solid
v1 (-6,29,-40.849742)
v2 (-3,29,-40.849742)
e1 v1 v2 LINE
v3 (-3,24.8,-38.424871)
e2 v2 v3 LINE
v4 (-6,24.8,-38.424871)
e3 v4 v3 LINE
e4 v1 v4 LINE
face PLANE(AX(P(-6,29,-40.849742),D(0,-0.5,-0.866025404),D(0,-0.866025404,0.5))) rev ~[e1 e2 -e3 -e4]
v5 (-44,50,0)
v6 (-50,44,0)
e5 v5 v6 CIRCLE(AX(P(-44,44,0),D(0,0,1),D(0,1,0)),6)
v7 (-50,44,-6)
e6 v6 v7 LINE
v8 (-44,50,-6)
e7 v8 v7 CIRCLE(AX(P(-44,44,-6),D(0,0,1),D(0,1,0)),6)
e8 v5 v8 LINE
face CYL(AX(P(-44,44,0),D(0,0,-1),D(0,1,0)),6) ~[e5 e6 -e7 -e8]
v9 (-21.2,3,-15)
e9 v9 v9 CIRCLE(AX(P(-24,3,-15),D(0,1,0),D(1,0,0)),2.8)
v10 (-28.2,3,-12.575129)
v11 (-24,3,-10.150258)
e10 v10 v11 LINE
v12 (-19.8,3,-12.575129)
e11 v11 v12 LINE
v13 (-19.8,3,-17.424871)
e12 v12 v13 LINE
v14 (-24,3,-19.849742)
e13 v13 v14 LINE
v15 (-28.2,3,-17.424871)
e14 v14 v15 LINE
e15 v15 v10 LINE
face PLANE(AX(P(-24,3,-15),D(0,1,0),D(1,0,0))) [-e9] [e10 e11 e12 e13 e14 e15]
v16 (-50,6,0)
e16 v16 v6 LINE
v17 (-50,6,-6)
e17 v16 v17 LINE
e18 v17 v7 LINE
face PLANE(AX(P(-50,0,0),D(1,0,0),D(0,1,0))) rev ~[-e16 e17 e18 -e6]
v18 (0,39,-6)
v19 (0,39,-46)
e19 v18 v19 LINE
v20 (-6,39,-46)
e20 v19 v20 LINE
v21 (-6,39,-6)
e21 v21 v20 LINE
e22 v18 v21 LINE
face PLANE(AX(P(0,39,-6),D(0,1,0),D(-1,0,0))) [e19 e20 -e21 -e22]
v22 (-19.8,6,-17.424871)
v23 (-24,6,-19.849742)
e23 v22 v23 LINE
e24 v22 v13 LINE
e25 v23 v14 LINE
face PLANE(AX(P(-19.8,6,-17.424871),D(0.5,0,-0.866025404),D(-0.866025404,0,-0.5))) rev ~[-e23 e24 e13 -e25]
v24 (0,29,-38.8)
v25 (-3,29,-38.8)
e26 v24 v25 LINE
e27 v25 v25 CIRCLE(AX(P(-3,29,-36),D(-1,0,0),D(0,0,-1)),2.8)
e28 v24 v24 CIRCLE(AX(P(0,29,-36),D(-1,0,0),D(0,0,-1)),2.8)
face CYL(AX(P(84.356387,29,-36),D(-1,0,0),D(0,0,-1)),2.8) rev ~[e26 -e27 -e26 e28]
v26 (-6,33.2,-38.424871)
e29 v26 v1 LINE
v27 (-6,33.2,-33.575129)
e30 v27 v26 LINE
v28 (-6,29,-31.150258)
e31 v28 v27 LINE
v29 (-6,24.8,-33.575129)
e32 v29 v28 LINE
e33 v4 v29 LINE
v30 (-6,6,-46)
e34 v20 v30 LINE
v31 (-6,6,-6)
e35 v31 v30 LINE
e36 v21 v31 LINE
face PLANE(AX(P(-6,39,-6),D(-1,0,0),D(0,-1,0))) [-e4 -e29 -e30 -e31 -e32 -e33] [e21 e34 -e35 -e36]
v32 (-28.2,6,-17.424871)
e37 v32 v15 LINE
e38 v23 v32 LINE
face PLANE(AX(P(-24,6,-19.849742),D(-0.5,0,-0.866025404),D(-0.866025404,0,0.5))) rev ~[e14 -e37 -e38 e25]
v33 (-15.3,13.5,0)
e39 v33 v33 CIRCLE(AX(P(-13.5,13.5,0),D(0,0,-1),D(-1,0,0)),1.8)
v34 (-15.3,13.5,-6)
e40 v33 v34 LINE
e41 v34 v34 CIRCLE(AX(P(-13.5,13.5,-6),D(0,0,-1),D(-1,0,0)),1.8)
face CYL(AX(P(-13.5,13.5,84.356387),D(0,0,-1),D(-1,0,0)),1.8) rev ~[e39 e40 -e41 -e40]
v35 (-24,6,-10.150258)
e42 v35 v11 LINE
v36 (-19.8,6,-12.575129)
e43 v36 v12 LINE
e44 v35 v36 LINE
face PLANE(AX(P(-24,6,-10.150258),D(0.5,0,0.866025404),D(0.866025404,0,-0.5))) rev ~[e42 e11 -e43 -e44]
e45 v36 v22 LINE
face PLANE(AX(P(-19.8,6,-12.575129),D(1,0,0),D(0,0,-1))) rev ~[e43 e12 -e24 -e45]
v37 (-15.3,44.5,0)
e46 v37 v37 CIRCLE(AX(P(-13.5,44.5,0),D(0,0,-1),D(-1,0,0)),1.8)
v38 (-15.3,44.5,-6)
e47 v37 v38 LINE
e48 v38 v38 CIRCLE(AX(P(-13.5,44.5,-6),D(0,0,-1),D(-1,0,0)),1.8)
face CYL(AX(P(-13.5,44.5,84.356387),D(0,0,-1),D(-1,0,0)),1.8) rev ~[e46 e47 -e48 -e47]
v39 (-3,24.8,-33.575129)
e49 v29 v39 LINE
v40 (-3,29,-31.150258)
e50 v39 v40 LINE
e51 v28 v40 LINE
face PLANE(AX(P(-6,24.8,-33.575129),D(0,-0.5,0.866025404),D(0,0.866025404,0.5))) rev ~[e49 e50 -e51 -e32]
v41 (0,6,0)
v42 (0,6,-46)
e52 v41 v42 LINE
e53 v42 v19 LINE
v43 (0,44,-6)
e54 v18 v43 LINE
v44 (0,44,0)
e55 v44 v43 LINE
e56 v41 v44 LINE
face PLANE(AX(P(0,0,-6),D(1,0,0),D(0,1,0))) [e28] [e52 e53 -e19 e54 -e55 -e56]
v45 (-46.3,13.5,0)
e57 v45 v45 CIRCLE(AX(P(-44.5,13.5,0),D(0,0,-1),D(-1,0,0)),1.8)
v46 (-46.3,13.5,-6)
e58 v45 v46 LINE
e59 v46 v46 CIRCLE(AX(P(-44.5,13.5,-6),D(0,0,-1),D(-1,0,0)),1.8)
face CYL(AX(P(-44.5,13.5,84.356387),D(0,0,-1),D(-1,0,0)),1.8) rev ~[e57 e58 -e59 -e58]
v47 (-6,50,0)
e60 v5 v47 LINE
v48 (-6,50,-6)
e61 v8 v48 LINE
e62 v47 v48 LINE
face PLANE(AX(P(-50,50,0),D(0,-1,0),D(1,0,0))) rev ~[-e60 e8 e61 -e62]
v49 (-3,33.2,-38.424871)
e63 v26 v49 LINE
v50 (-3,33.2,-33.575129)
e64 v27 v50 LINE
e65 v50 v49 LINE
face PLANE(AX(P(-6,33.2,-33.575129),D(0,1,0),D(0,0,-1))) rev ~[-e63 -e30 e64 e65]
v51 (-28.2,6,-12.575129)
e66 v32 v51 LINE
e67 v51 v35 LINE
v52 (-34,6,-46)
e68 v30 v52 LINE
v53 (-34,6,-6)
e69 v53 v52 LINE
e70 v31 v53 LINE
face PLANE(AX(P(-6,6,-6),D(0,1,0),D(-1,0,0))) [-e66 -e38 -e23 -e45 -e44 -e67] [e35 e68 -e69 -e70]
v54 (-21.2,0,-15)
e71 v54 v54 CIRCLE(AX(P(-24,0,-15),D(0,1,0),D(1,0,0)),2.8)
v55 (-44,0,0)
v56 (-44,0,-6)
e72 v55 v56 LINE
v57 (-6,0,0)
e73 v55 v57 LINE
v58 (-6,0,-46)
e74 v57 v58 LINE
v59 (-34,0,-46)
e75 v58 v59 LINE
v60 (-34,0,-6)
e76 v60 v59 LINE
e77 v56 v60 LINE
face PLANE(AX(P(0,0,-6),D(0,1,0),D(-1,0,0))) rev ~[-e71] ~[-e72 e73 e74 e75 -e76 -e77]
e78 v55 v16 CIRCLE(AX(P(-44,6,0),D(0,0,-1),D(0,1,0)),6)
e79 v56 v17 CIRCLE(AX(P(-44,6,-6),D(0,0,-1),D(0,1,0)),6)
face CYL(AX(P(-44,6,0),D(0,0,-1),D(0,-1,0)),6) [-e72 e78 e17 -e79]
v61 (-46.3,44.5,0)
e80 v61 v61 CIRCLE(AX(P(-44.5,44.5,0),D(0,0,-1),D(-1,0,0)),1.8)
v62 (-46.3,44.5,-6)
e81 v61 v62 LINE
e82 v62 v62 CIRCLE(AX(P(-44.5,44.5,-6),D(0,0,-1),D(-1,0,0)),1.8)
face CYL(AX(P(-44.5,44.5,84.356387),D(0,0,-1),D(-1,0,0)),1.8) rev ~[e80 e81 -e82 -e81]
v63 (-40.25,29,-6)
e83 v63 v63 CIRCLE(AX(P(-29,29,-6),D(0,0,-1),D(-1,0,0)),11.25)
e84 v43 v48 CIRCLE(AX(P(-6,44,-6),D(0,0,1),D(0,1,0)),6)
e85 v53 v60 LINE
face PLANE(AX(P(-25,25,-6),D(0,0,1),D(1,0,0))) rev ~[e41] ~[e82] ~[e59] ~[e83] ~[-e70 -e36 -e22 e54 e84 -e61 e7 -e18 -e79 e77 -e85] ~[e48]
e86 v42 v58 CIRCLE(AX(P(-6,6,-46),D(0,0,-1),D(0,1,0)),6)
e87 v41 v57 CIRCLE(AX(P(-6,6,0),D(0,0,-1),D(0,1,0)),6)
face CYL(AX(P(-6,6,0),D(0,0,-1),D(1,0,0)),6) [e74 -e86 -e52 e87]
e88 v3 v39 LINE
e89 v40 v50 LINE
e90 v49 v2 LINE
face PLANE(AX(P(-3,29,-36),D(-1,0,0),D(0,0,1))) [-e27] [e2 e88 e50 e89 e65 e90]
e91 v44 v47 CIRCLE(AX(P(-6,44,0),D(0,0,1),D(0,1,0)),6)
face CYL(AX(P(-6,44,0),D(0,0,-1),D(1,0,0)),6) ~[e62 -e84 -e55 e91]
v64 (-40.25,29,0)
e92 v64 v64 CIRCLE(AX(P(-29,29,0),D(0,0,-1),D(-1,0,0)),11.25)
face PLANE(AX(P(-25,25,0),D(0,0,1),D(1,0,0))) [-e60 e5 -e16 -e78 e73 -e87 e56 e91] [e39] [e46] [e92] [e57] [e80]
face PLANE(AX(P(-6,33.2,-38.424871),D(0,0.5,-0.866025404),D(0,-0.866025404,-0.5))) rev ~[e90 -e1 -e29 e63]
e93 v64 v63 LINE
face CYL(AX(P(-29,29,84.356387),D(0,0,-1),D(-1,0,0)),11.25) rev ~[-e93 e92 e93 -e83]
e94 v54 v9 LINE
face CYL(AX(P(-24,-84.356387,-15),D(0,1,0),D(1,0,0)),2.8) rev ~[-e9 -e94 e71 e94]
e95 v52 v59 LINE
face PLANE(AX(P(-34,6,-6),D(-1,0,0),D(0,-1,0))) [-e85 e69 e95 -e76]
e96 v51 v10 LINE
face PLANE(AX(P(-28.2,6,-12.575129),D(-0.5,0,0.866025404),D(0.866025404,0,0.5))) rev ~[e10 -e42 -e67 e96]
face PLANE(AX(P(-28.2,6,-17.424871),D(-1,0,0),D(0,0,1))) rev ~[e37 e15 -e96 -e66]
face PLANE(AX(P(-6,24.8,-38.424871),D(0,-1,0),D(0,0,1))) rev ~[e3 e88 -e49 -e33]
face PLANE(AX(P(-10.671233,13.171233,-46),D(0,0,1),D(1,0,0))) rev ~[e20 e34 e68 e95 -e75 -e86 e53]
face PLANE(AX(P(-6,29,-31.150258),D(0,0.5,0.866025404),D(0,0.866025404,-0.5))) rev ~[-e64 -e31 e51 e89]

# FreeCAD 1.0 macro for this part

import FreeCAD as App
import Part
import Sketcher
Q = App.Units.Quantity


def edges_at(feature, points):
    """Names of the edges that pass closest to the given points."""
    edges = feature.Shape.Edges
    near = lambda p: min(range(len(edges)), key=lambda i: edges[i].distToShape(Part.Vertex(*p))[0])
    return sorted({f"Edge{near(p) + 1}" for p in points})

doc = App.newDocument("Part")
body = doc.addObject("PartDesign::Body", "Body")

# Sketch on XY plane
sketch1 = body.newObject("Sketcher::SketchObject", "Sketch")
sketch1.AttachmentSupport = (doc.getObject("XY_Plane"), [""])
sketch1.MapMode = "FlatFace"
sketch1.addGeometry([
    Part.LineSegment(App.Vector(-50, 50, 0), App.Vector(-50, 0, 0)),
    Part.LineSegment(App.Vector(-50, 0, 0), App.Vector(0, 0, 0)),
    Part.LineSegment(App.Vector(0, 0, 0), App.Vector(0, 50, 0)),
    Part.LineSegment(App.Vector(0, 50, 0), App.Vector(-50, 50, 0)),
], False)
sketch1.addConstraint([
    Sketcher.Constraint("Coincident", 0, 2, 1, 1),
    Sketcher.Constraint("Coincident", 1, 2, 2, 1),
    Sketcher.Constraint("Coincident", 2, 2, 3, 1),
    Sketcher.Constraint("Coincident", 3, 2, 0, 1),
    Sketcher.Constraint("Vertical", 0),
    Sketcher.Constraint("Horizontal", 1),
    Sketcher.Constraint("Vertical", 2),
    Sketcher.Constraint("Horizontal", 3),
    Sketcher.Constraint("Coincident", 1, 2, -1, 1),
    Sketcher.Constraint("Equal", 3, 0),
    Sketcher.Constraint("DistanceX", 1, 1, 1, 2, Q("50 mm")),
])
pad1 = body.newObject("PartDesign::Pad", "Pad")
pad1.Profile = sketch1
pad1.Length = 6
pad1.Reversed = True

# Sketch on XY plane
sketch2 = body.newObject("Sketcher::SketchObject", "Sketch001")
sketch2.AttachmentSupport = (doc.getObject("XY_Plane"), [""])
sketch2.MapMode = "FlatFace"
sketch2.AttachmentOffset = App.Placement(App.Vector(0, 0, -6), App.Rotation())
sketch2.addGeometry([
    Part.LineSegment(App.Vector(-6, 39, 0), App.Vector(0, 39, 0)),  # 0
    Part.LineSegment(App.Vector(0, 39, 0), App.Vector(0, 0, 0)),  # 1
    Part.LineSegment(App.Vector(0, 0, 0), App.Vector(-34, 0, 0)),  # 2
    Part.LineSegment(App.Vector(-34, 0, 0), App.Vector(-34, 6, 0)),  # 3
    Part.LineSegment(App.Vector(-34, 6, 0), App.Vector(-6, 6, 0)),  # 4
    Part.LineSegment(App.Vector(-6, 6, 0), App.Vector(-6, 39, 0)),  # 5
], False)
sketch2.addConstraint([
    Sketcher.Constraint("Coincident", 0, 2, 1, 1),
    Sketcher.Constraint("Coincident", 1, 2, 2, 1),
    Sketcher.Constraint("Coincident", 2, 2, 3, 1),
    Sketcher.Constraint("Coincident", 3, 2, 4, 1),
    Sketcher.Constraint("Coincident", 4, 2, 5, 1),
    Sketcher.Constraint("Coincident", 5, 2, 0, 1),
    Sketcher.Constraint("Horizontal", 0),
    Sketcher.Constraint("Vertical", 1),
    Sketcher.Constraint("Horizontal", 2),
    Sketcher.Constraint("Vertical", 3),
    Sketcher.Constraint("Horizontal", 4),
    Sketcher.Constraint("Vertical", 5),
    Sketcher.Constraint("Coincident", 1, 2, -1, 1),
    Sketcher.Constraint("Equal", 0, 3),
    Sketcher.Constraint("DistanceX", 0, 1, 0, 2, Q("6 mm")),
    Sketcher.Constraint("DistanceX", 2, 2, 2, 1, Q("34 mm")),
    Sketcher.Constraint("DistanceY", 1, 2, 1, 1, Q("39 mm")),
])
pad2 = body.newObject("PartDesign::Pad", "Pad001")
pad2.Profile = sketch2
pad2.Length = 40
pad2.Reversed = True

# Sketch on XY plane
sketch3 = body.newObject("Sketcher::SketchObject", "Sketch002")
sketch3.AttachmentSupport = (doc.getObject("XY_Plane"), [""])
sketch3.MapMode = "FlatFace"
sketch3.addGeometry([
    Part.Circle(App.Vector(-44.5, 44.5, 0), App.Vector(0, 0, 1), 1.8),
    Part.Circle(App.Vector(-13.5, 44.5, 0), App.Vector(0, 0, 1), 1.8),
    Part.Circle(App.Vector(-13.5, 13.5, 0), App.Vector(0, 0, 1), 1.8),
    Part.Circle(App.Vector(-44.5, 13.5, 0), App.Vector(0, 0, 1), 1.8),
], False)
sketch3.addConstraint([
    Sketcher.Constraint("Equal", 0, 1),
    Sketcher.Constraint("Equal", 1, 2),
    Sketcher.Constraint("Equal", 2, 3),
    Sketcher.Constraint("Horizontal", 0, 3, 1, 3),
    Sketcher.Constraint("Horizontal", 2, 3, 3, 3),
    Sketcher.Constraint("Vertical", 1, 3, 2, 3),
    Sketcher.Constraint("Vertical", 0, 3, 3, 3),
    Sketcher.Constraint("Diameter", 0, Q("3.6 mm")),
    Sketcher.Constraint("DistanceX", 0, 3, 1, 3, Q("31 mm")),
    Sketcher.Constraint("DistanceY", 2, 3, 1, 3, Q("31 mm")),
    Sketcher.Constraint("DistanceX", 0, 3, -1, 1, Q("44.5 mm")),
    Sketcher.Constraint("DistanceY", -1, 1, 0, 3, Q("44.5 mm")),
])
doc.recompute()
hole = body.newObject("PartDesign::Hole", "Hole")
hole.Profile = sketch3
hole.ThreadType = "None"
hole.Diameter = 3.6
hole.DepthType = "ThroughAll"

# Sketch on XY plane
sketch4 = body.newObject("Sketcher::SketchObject", "Sketch003")
sketch4.AttachmentSupport = (doc.getObject("XY_Plane"), [""])
sketch4.MapMode = "FlatFace"
sketch4.addGeometry(Part.Circle(App.Vector(-29, 29, 0), App.Vector(0, 0, 1), 11), False)
sketch4.addConstraint([
    Sketcher.Constraint("Diameter", 0, Q("22.5 mm")),
    Sketcher.Constraint("DistanceX", 0, 3, -1, 1, Q("29 mm")),
    Sketcher.Constraint("DistanceY", -1, 1, 0, 3, Q("29 mm")),
])
doc.recompute()
hole2 = body.newObject("PartDesign::Hole", "Hole001")
hole2.Profile = sketch4
hole2.ThreadType = "None"
hole2.Diameter = 22.5
hole2.DepthType = "ThroughAll"

# Sketch on YZ plane
sketch5 = body.newObject("Sketcher::SketchObject", "Sketch004")
sketch5.AttachmentSupport = (doc.getObject("YZ_Plane"), [""])
sketch5.MapMode = "FlatFace"
sketch5.addGeometry(Part.Circle(App.Vector(29, -36, 0), App.Vector(0, 0, 1), 2.8), False)
sketch5.addConstraint([
    Sketcher.Constraint("Diameter", 0, Q("5.6 mm")),
    Sketcher.Constraint("DistanceX", -1, 1, 0, 3, Q("29 mm")),
    Sketcher.Constraint("DistanceY", 0, 3, -1, 1, Q("36 mm")),
])
doc.recompute()
hole3 = body.newObject("PartDesign::Hole", "Hole002")
hole3.Profile = sketch5
hole3.ThreadType = "None"
hole3.Diameter = 5.6
hole3.DepthType = "ThroughAll"

# Sketch on XZ plane
sketch6 = body.newObject("Sketcher::SketchObject", "Sketch005")
sketch6.AttachmentSupport = (doc.getObject("XZ_Plane"), [""])
sketch6.MapMode = "FlatFace"
sketch6.addGeometry(Part.Circle(App.Vector(-24, -15, 0), App.Vector(0, 0, 1), 2.8), False)
sketch6.addConstraint([
    Sketcher.Constraint("Diameter", 0, Q("5.6 mm")),
    Sketcher.Constraint("DistanceX", 0, 3, -1, 1, Q("24 mm")),
    Sketcher.Constraint("DistanceY", 0, 3, -1, 1, Q("15 mm")),
])
doc.recompute()
hole4 = body.newObject("PartDesign::Hole", "Hole003")
hole4.Profile = sketch6
hole4.ThreadType = "None"
hole4.Diameter = 5.6
hole4.DepthType = "ThroughAll"

# Sketch on XZ plane
sketch7 = body.newObject("Sketcher::SketchObject", "Sketch006")
sketch7.AttachmentSupport = (doc.getObject("XZ_Plane"), [""])
sketch7.MapMode = "FlatFace"
sketch7.AttachmentOffset = App.Placement(App.Vector(0, 0, -6), App.Rotation())
sketch7.addGeometry([
    Part.LineSegment(App.Vector(-28.2, -12.6, 0), App.Vector(-24, -10.2, 0)),  # 0
    Part.LineSegment(App.Vector(-24, -10.2, 0), App.Vector(-19.8, -12.6, 0)),  # 1
    Part.LineSegment(App.Vector(-19.8, -12.6, 0), App.Vector(-19.8, -17.4, 0)),  # 2
    Part.LineSegment(App.Vector(-19.8, -17.4, 0), App.Vector(-24, -19.8, 0)),  # 3
    Part.LineSegment(App.Vector(-24, -19.8, 0), App.Vector(-28.2, -17.4, 0)),  # 4
    Part.LineSegment(App.Vector(-28.2, -17.4, 0), App.Vector(-28.2, -12.6, 0)),  # 5
], False)
sketch7.addConstraint([
    Sketcher.Constraint("Coincident", 0, 2, 1, 1),
    Sketcher.Constraint("Coincident", 1, 2, 2, 1),
    Sketcher.Constraint("Coincident", 2, 2, 3, 1),
    Sketcher.Constraint("Coincident", 3, 2, 4, 1),
    Sketcher.Constraint("Coincident", 4, 2, 5, 1),
    Sketcher.Constraint("Coincident", 5, 2, 0, 1),
    Sketcher.Constraint("Vertical", 2),
    Sketcher.Constraint("Vertical", 5),
    Sketcher.Constraint("Parallel", 0, 3),
    Sketcher.Constraint("Parallel", 1, 4),
    Sketcher.Constraint("Horizontal", 2, 2, 4, 2),
    Sketcher.Constraint("Horizontal", 1, 2, 5, 2),
    Sketcher.Constraint("Vertical", 0, 2, 3, 2),
    Sketcher.Constraint("Angle", 0, Q("30 deg")),
    Sketcher.Constraint("DistanceX", 0, 2, -1, 1, Q("24 mm")),
    Sketcher.Constraint("DistanceX", 1, 2, -1, 1, Q("19.8 mm")),
    Sketcher.Constraint("DistanceY", 2, 2, 2, 1, Q("4.849742 mm")),
    Sketcher.Constraint("DistanceY", 1, 2, -1, 1, Q("12.575129 mm")),
])
pocket1 = body.newObject("PartDesign::Pocket", "Pocket")
pocket1.Profile = sketch7
pocket1.Length = 3
pocket1.Reversed = True

# Sketch on YZ plane
sketch8 = body.newObject("Sketcher::SketchObject", "Sketch007")
sketch8.AttachmentSupport = (doc.getObject("YZ_Plane"), [""])
sketch8.MapMode = "FlatFace"
sketch8.AttachmentOffset = App.Placement(App.Vector(0, 0, -6), App.Rotation())
sketch8.addGeometry([
    Part.LineSegment(App.Vector(29, -40.8, 0), App.Vector(24.8, -38.4, 0)),  # 0
    Part.LineSegment(App.Vector(24.8, -38.4, 0), App.Vector(24.8, -33.6, 0)),  # 1
    Part.LineSegment(App.Vector(24.8, -33.6, 0), App.Vector(29, -31.2, 0)),  # 2
    Part.LineSegment(App.Vector(29, -31.2, 0), App.Vector(33.2, -33.6, 0)),  # 3
    Part.LineSegment(App.Vector(33.2, -33.6, 0), App.Vector(33.2, -38.4, 0)),  # 4
    Part.LineSegment(App.Vector(33.2, -38.4, 0), App.Vector(29, -40.8, 0)),  # 5
], False)
sketch8.addConstraint([
    Sketcher.Constraint("Coincident", 0, 2, 1, 1),
    Sketcher.Constraint("Coincident", 1, 2, 2, 1),
    Sketcher.Constraint("Coincident", 2, 2, 3, 1),
    Sketcher.Constraint("Coincident", 3, 2, 4, 1),
    Sketcher.Constraint("Coincident", 4, 2, 5, 1),
    Sketcher.Constraint("Coincident", 5, 2, 0, 1),
    Sketcher.Constraint("Vertical", 1),
    Sketcher.Constraint("Vertical", 4),
    Sketcher.Constraint("Parallel", 0, 3),
    Sketcher.Constraint("Parallel", 2, 5),
    Sketcher.Constraint("Horizontal", 1, 2, 3, 2),
    Sketcher.Constraint("Horizontal", 0, 2, 4, 2),
    Sketcher.Constraint("Vertical", 2, 2, 5, 2),
    Sketcher.Constraint("Angle", 0, Q("150 deg")),
    Sketcher.Constraint("DistanceX", -1, 1, 2, 2, Q("29 mm")),
    Sketcher.Constraint("DistanceX", -1, 1, 0, 2, Q("24.8 mm")),
    Sketcher.Constraint("DistanceY", 1, 1, 1, 2, Q("4.849742 mm")),
    Sketcher.Constraint("DistanceY", 0, 2, -1, 1, Q("38.424871 mm")),
])
pocket2 = body.newObject("PartDesign::Pocket", "Pocket001")
pocket2.Profile = sketch8
pocket2.Length = 3
pocket2.Reversed = True
doc.recompute()

fillet = body.newObject("PartDesign::Fillet", "Fillet")
fillet.Base = (pocket2, edges_at(pocket2, [
    (-50, 50, -3),
    (0, 50, -3),
    (0, 0, -23),
    (-50, 0, -3),
]))
fillet.Radius = 6

doc.recompute()
